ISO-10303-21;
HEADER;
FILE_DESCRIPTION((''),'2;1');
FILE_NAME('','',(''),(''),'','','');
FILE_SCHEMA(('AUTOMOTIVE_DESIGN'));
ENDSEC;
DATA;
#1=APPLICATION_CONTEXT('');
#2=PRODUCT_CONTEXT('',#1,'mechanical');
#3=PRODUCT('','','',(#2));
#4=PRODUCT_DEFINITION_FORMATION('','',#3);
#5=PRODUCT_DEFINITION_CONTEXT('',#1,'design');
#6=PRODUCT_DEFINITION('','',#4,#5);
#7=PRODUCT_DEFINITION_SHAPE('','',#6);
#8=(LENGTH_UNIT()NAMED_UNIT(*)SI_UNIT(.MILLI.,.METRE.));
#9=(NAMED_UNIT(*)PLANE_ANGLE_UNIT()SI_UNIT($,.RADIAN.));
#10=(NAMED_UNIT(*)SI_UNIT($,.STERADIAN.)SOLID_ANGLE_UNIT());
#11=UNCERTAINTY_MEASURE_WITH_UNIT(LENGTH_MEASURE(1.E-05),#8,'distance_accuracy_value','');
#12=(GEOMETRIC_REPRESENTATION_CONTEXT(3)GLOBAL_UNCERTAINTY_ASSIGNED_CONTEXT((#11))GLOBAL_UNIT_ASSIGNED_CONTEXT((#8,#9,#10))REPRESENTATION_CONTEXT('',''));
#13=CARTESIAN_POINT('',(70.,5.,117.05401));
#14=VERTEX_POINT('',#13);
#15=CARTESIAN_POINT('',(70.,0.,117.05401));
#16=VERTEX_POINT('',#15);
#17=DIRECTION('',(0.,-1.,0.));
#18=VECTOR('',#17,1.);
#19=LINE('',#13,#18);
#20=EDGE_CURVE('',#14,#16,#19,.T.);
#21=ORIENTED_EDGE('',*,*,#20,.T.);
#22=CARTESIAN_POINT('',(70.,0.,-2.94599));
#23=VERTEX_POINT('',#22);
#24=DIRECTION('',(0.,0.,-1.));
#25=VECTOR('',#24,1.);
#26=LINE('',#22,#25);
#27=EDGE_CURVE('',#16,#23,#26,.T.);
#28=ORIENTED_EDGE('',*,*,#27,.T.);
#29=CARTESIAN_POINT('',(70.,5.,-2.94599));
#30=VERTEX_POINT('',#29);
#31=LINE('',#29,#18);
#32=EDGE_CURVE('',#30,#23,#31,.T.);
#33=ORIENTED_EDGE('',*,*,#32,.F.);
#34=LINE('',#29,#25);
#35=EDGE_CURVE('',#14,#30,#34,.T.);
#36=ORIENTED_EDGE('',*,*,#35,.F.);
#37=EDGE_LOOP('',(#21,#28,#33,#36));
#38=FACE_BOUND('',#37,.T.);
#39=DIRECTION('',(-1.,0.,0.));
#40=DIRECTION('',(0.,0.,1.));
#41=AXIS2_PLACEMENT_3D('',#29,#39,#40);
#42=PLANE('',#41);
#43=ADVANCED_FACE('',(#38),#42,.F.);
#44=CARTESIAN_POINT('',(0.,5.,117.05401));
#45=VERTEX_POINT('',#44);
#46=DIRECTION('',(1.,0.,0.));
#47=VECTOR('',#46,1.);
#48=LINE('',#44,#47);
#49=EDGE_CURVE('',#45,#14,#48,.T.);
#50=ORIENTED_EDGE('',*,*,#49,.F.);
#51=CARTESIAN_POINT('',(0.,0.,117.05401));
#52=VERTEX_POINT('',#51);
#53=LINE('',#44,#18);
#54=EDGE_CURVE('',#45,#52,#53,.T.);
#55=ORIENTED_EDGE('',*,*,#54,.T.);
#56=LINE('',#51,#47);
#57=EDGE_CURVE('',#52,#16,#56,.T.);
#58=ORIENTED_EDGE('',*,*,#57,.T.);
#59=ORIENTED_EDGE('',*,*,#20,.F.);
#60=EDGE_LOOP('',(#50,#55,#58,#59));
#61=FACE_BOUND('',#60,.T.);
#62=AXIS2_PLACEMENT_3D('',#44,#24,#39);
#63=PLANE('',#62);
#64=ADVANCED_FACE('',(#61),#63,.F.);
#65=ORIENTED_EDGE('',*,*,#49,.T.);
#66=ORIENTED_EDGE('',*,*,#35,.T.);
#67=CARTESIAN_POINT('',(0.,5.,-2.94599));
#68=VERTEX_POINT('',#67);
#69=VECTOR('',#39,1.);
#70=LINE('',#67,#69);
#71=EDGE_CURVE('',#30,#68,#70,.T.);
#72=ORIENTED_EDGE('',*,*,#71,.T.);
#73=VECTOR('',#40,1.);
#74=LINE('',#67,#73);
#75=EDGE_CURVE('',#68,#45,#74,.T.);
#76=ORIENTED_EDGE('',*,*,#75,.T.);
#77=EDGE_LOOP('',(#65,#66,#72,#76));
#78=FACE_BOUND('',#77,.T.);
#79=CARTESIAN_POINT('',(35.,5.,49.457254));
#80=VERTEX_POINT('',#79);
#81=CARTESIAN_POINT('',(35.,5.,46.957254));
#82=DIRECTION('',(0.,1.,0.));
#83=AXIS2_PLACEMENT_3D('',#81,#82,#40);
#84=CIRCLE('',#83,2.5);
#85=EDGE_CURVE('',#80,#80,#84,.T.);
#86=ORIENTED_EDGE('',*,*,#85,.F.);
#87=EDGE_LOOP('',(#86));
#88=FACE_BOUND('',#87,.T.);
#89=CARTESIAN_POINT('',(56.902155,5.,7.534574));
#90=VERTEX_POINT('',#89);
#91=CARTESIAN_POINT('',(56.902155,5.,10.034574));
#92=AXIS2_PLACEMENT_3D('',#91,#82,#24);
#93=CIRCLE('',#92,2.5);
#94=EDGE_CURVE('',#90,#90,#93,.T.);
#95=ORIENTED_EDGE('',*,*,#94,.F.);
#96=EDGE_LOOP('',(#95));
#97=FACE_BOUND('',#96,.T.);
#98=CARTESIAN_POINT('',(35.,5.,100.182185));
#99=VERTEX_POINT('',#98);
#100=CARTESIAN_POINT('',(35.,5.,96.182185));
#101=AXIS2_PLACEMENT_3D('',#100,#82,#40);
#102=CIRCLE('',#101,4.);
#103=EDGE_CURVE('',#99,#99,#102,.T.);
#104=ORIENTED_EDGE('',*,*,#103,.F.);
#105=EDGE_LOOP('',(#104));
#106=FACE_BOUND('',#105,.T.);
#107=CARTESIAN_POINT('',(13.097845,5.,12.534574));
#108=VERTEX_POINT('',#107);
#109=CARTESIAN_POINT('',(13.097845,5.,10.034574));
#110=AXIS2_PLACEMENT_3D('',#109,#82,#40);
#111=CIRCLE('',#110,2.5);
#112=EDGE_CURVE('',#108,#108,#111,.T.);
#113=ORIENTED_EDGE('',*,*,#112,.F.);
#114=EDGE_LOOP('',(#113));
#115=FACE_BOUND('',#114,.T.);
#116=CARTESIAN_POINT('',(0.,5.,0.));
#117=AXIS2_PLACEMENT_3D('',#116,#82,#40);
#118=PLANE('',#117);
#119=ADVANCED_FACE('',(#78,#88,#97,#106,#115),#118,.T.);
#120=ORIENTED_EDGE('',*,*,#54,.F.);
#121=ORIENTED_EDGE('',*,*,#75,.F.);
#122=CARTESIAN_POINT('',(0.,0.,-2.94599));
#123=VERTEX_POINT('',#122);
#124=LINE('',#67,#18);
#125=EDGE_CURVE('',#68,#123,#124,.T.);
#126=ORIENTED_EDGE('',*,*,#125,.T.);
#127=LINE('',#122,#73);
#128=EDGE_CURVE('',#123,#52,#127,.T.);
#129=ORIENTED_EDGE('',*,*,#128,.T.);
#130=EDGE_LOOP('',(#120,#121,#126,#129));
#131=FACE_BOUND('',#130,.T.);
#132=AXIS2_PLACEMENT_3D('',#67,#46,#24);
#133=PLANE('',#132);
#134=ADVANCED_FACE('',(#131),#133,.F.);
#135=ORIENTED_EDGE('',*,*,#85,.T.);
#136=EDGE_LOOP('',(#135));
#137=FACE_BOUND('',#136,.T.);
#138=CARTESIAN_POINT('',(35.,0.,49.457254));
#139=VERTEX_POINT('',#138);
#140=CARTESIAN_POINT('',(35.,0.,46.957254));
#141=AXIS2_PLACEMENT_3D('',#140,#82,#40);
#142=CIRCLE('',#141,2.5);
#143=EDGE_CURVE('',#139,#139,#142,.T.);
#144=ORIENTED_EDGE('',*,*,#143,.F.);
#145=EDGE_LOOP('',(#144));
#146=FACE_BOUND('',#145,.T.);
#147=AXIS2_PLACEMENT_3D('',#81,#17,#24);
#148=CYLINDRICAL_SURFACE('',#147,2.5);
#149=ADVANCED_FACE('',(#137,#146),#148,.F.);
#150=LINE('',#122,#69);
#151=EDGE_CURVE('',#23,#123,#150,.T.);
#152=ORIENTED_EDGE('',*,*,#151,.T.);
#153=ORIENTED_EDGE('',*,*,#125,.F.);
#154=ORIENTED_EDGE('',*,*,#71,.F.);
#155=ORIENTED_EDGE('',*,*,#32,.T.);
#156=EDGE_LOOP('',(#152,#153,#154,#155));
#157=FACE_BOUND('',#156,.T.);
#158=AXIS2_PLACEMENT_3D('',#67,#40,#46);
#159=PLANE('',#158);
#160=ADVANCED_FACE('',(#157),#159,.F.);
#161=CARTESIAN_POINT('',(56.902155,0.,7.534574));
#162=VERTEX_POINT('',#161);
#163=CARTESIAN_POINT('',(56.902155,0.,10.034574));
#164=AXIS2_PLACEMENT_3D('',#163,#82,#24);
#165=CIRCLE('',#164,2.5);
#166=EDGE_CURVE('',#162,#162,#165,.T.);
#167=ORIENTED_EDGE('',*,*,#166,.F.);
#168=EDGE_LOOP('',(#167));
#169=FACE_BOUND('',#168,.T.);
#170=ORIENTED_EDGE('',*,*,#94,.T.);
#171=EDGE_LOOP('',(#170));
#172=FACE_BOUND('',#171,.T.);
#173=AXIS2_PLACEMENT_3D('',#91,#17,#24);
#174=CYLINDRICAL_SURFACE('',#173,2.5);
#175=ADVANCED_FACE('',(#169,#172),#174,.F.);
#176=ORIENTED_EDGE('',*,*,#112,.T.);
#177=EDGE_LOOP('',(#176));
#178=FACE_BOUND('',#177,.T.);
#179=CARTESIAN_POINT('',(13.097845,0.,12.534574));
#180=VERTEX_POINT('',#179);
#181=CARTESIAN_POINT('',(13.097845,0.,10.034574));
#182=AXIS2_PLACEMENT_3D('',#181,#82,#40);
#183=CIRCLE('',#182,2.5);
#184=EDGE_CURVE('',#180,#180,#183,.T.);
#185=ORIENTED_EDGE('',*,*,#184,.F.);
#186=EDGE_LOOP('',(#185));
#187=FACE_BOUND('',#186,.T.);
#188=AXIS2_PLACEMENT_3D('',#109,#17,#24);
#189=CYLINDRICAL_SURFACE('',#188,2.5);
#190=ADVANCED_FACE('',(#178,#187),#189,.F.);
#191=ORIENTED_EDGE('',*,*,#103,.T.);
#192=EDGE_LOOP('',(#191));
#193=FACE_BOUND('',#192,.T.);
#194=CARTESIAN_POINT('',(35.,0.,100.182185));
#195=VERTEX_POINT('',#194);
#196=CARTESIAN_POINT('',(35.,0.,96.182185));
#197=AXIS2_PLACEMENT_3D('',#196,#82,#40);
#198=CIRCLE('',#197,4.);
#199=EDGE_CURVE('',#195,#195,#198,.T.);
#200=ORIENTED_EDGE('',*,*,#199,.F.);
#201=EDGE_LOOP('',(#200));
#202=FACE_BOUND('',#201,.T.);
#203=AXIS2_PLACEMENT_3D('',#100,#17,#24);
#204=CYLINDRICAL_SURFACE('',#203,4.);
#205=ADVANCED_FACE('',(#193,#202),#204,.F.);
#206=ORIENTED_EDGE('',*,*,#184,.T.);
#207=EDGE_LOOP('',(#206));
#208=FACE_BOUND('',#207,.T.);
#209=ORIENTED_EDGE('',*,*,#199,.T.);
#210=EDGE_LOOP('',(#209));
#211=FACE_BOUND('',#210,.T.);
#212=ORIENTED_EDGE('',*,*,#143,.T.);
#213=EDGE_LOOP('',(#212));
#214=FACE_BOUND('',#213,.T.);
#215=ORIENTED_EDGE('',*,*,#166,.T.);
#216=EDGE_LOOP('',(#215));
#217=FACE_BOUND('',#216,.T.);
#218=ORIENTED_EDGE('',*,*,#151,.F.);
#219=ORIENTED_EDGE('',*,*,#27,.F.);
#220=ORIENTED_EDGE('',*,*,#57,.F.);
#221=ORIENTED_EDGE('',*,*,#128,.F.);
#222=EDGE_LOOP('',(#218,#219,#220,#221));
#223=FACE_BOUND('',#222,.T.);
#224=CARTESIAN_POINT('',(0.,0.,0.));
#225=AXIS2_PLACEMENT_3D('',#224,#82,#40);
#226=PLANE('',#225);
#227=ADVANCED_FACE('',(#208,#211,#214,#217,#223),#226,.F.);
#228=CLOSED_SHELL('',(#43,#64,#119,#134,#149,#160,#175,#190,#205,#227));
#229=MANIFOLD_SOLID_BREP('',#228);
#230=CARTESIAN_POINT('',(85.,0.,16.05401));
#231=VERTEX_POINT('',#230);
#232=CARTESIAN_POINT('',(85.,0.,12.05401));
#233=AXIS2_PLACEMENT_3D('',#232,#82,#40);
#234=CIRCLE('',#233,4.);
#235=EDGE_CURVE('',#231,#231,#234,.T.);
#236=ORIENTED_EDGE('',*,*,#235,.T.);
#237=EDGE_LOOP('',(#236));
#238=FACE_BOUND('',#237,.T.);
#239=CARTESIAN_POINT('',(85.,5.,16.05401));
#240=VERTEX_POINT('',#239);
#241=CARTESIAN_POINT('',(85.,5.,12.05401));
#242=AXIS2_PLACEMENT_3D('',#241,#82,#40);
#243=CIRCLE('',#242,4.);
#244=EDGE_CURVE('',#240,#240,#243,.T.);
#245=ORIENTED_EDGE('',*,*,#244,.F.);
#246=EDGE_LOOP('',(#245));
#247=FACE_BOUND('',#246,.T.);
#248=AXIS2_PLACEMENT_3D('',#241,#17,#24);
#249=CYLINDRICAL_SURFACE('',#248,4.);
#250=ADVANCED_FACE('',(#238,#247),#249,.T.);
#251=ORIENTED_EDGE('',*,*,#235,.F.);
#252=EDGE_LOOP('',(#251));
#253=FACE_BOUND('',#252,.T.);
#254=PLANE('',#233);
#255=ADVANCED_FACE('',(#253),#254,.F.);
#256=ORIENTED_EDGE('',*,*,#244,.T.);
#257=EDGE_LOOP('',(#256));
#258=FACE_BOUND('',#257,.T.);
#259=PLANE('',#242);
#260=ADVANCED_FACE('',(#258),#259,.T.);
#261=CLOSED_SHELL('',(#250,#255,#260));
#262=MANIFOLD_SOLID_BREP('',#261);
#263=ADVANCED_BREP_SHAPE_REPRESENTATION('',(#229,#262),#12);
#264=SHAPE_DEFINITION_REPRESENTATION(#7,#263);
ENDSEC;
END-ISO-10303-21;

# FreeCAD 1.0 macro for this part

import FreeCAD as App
import Part
import Sketcher
Q = App.Units.Quantity


def add_polygon(sketch, points):
    """Adds a closed chain of lines whose ends are joined by coincident constraints."""
    first, n = sketch.GeometryCount, len(points)
    for a, b in zip(points, points[1:] + points[:1]):
        sketch.addGeometry(Part.LineSegment(App.Vector(*a, 0), App.Vector(*b, 0)), False)
    for i in range(n):
        sketch.addConstraint(Sketcher.Constraint("Coincident", first + i, 2, first + (i + 1) % n, 1))

doc = App.newDocument("Part")
body = doc.addObject("PartDesign::Body", "Body")

# Sketch on XZ plane
sketch1 = body.newObject("Sketcher::SketchObject", "Sketch")
sketch1.AttachmentSupport = (doc.getObject("XZ_Plane"), [""])
sketch1.MapMode = "FlatFace"
sketch1.addGeometry(Part.Circle(App.Vector(85, 12.1, 0), App.Vector(0, 0, 1), 4), False)
sketch1.addConstraint([
    Sketcher.Constraint("Diameter", 0, Q("8 mm")),
    Sketcher.Constraint("DistanceX", -1, 1, 0, 3, Q("85 mm")),
    Sketcher.Constraint("DistanceY", -1, 1, 0, 3, Q("12.05401 mm")),
])
pad1 = body.newObject("PartDesign::Pad", "Pad")
pad1.Profile = sketch1
pad1.Length = 5
pad1.Reversed = True
body2 = doc.addObject("PartDesign::Body", "Body001")

# Sketch on XZ plane
sketch2 = body2.newObject("Sketcher::SketchObject", "Sketch001")
sketch2.AttachmentSupport = (doc.getObject("XZ_Plane001"), [""])
sketch2.MapMode = "FlatFace"
add_polygon(sketch2, [(0, -2.9), (0, 117.1), (70, 117.1), (70, -2.9)])  # lines 0-3
sketch2.addGeometry(Part.Circle(App.Vector(35, 96.2, 0), App.Vector(0, 0, 1), 4), False)  # 4
sketch2.addGeometry(Part.Circle(App.Vector(13.1, 10, 0), App.Vector(0, 0, 1), 2.5), False)  # 5
sketch2.addGeometry(Part.Circle(App.Vector(35, 47, 0), App.Vector(0, 0, 1), 2.5), False)  # 6
sketch2.addGeometry(Part.Circle(App.Vector(56.9, 10, 0), App.Vector(0, 0, 1), 2.5), False)  # 7
sketch2.addConstraint([
    Sketcher.Constraint("Vertical", 0),
    Sketcher.Constraint("Horizontal", 1),
    Sketcher.Constraint("Vertical", 2),
    Sketcher.Constraint("Horizontal", 3),
    Sketcher.Constraint("Equal", 5, 6),
    Sketcher.Constraint("Equal", 6, 7),
    Sketcher.Constraint("PointOnObject", 0, 2, -2),
    Sketcher.Constraint("Horizontal", 5, 3, 7, 3),
    Sketcher.Constraint("Vertical", 4, 3, 6, 3),
    Sketcher.Constraint("Diameter", 4, Q("8 mm")),
    Sketcher.Constraint("Diameter", 5, Q("5 mm")),
    Sketcher.Constraint("DistanceX", 1, 1, 1, 2, Q("70 mm")),
    Sketcher.Constraint("DistanceY", 0, 1, 0, 2, Q("120 mm")),
    Sketcher.Constraint("DistanceX", -1, 1, 4, 3, Q("35 mm")),
    Sketcher.Constraint("DistanceY", -1, 1, 0, 2, Q("117.05401 mm")),
    Sketcher.Constraint("DistanceY", 5, 3, 4, 3, Q("86.147611 mm")),
    Sketcher.Constraint("DistanceY", 5, 3, 6, 3, Q("36.92268 mm")),
    Sketcher.Constraint("DistanceX", 5, 3, 7, 3, Q("43.80431 mm")),
    Sketcher.Constraint("DistanceY", -1, 1, 4, 3, Q("96.182185 mm")),
    Sketcher.Constraint("DistanceX", -1, 1, 5, 3, Q("13.097845 mm")),
])
pad2 = body2.newObject("PartDesign::Pad", "Pad001")
pad2.Profile = sketch2
pad2.Length = 5
pad2.Reversed = True

doc.recompute()
